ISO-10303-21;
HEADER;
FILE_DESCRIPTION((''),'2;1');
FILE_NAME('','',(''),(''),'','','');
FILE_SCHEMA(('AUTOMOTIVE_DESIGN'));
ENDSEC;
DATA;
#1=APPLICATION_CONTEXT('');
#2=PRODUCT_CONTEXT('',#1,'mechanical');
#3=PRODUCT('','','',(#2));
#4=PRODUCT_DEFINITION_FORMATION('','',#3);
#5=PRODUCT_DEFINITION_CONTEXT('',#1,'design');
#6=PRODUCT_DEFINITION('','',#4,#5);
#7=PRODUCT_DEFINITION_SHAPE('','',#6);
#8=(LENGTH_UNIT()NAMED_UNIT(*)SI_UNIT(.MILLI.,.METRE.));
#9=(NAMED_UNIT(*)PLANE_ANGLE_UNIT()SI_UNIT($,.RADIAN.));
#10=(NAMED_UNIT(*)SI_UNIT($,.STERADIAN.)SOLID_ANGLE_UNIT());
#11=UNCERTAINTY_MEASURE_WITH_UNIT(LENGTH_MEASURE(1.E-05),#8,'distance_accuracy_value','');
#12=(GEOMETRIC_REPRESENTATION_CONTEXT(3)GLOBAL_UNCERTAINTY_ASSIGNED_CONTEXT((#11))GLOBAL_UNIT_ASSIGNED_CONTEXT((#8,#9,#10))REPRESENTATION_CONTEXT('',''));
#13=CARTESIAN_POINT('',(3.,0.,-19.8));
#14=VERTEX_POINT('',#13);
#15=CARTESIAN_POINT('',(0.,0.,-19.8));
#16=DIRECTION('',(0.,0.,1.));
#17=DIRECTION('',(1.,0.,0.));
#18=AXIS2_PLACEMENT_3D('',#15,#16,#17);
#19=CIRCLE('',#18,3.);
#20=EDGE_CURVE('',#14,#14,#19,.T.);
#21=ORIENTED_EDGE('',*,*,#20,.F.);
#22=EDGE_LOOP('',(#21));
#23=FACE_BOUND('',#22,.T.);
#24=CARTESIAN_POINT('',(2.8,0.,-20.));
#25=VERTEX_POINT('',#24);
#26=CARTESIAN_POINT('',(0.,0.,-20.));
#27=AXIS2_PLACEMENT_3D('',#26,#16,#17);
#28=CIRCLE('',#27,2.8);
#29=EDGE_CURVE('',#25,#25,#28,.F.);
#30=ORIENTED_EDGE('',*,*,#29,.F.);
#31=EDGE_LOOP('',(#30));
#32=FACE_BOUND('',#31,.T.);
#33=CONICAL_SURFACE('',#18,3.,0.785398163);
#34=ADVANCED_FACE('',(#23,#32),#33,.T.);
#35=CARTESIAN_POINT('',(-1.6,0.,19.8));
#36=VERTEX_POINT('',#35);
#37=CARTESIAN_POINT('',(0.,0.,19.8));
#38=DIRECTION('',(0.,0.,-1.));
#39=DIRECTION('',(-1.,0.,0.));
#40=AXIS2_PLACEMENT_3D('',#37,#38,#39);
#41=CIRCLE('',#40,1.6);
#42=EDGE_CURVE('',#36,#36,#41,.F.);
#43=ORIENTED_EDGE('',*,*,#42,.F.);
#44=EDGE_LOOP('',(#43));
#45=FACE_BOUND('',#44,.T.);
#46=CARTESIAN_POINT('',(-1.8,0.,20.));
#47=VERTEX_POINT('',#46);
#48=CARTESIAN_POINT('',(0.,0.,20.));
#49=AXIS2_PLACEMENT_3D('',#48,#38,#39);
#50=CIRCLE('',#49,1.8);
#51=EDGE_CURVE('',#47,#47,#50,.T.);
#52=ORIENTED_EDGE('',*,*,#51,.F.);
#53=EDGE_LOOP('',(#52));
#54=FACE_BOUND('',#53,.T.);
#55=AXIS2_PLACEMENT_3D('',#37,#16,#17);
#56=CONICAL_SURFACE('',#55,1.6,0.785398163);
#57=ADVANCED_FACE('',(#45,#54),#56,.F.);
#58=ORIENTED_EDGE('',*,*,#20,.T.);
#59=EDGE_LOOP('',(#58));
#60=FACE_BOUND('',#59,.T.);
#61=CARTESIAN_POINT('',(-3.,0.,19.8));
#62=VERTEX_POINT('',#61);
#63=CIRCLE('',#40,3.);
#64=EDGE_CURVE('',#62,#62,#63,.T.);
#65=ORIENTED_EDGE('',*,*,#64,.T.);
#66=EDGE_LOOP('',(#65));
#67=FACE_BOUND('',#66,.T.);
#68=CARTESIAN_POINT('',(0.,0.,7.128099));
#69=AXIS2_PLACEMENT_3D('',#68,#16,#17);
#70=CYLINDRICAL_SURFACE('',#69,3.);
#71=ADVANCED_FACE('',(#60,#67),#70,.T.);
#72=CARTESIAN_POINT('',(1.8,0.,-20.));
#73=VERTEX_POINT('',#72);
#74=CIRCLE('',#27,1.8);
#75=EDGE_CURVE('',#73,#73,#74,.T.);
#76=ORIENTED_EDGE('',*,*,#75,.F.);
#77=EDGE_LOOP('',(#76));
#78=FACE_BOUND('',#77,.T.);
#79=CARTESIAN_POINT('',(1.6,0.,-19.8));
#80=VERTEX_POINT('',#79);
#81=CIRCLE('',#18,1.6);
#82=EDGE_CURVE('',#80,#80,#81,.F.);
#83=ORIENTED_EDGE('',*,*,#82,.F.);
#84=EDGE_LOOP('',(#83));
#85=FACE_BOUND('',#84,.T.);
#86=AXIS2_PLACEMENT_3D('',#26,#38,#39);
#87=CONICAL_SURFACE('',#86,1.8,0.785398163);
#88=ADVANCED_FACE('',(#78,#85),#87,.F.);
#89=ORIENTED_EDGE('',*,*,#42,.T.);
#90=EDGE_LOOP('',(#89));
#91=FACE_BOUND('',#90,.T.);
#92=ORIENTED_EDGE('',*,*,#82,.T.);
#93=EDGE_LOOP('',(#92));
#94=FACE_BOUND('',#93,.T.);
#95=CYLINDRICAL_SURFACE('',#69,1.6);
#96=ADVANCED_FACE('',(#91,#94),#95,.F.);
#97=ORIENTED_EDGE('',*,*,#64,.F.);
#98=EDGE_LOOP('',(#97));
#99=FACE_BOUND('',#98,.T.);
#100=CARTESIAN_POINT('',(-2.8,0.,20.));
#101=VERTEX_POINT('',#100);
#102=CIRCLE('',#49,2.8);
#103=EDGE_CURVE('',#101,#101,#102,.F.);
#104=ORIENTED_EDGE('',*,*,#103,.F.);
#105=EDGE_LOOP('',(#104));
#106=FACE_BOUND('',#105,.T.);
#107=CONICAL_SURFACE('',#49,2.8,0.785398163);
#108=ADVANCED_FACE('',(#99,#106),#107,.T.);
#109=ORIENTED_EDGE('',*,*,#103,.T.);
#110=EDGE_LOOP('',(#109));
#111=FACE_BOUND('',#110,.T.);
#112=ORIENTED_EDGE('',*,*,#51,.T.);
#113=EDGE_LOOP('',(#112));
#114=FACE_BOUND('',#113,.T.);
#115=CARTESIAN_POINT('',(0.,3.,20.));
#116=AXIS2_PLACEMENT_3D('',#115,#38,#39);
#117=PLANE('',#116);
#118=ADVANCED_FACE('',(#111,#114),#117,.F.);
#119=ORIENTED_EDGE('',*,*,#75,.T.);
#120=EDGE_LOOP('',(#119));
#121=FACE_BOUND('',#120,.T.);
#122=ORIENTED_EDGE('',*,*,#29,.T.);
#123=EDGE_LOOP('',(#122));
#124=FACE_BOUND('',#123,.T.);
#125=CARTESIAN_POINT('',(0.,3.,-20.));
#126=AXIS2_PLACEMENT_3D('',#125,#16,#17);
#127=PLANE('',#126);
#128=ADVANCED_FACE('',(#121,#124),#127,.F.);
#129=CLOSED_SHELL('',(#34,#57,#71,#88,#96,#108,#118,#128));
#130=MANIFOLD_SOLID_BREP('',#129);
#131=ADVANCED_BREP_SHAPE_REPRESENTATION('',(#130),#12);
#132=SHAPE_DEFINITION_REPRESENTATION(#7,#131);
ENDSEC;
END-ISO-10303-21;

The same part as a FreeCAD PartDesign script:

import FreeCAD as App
import Part
import Sketcher
from FreeCAD import Vector


def edges_at(feature, points):
    """Names of the edges that pass closest to the given points."""
    edges = feature.Shape.Edges
    near = lambda p: min(range(len(edges)), key=lambda i: edges[i].distToShape(Part.Vertex(*p))[0])
    return sorted({f"Edge{near(p) + 1}" for p in points})


def add_polygon(sketch, points):
    """Adds a closed chain of lines whose ends are joined by coincident constraints."""
    first, n = sketch.GeometryCount, len(points)
    for a, b in zip(points, points[1:] + points[:1]):
        sketch.addGeometry(Part.LineSegment(App.Vector(*a, 0), App.Vector(*b, 0)), False)
    for i in range(n):
        sketch.addConstraint(Sketcher.Constraint("Coincident", first + i, 2, first + (i + 1) % n, 1))

doc = App.newDocument("Part")
params = doc.addObject("Spreadsheet::Sheet", "Params")
for row, (alias, value) in enumerate([
    ("sketch1_height", "40 mm"),
    ("sketch1_width", "1.4 mm"),
    ("revolution_angle", "360 deg"),
    ("chamfer_size", "0.2 mm"),
], start=1):
    params.set(f"A{row}", alias)
    params.set(f"B{row}", "=" + value)
    params.setAlias(f"B{row}", alias)

body = doc.addObject("PartDesign::Body", "Body")

sketch1 = body.newObject("Sketcher::SketchObject", "Sketch")
sketch1.AttachmentSupport = (doc.getObject("YZ_Plane"), [""])
sketch1.MapMode = "FlatFace"
add_polygon(sketch1, [(3, 20), (1.6, 20), (1.6, -20), (3, -20)])
sketch1.addConstraint([
    Sketcher.Constraint("Horizontal", 0),
    Sketcher.Constraint("Vertical", 1),
    Sketcher.Constraint("Horizontal", 2),
    Sketcher.Constraint("Vertical", 3),
    Sketcher.Constraint("DistanceY", 1, 2, 1, 1, 40.0),
    Sketcher.Constraint("DistanceX", 0, 2, 0, 1, 1.4),
    Sketcher.Constraint("DistanceY", -1, 1, 0, 2, 20.0),
    Sketcher.Constraint("DistanceX", -1, 1, 2, 2, 3.0),
])
sketch1.setExpression("Constraints[8]", "Params.sketch1_height")
sketch1.setExpression("Constraints[9]", "Params.sketch1_width")
revolution = body.newObject("PartDesign::Revolution", "Revolution")
revolution.Profile = sketch1
revolution.ReferenceAxis = (sketch1, ["V_Axis"])
revolution.setExpression("Angle", "Params.revolution_angle")
doc.recompute()

chamfer = body.newObject("PartDesign::Chamfer", "Chamfer")
chamfer.Base = (revolution, edges_at(revolution, [
    (-3, 0, 20),
    (-3, 0, -20),
    (-1.6, 0, -20),
    (-1.6, 0, 20),
]))
chamfer.setExpression("Size", "Params.chamfer_size")

doc.recompute()
